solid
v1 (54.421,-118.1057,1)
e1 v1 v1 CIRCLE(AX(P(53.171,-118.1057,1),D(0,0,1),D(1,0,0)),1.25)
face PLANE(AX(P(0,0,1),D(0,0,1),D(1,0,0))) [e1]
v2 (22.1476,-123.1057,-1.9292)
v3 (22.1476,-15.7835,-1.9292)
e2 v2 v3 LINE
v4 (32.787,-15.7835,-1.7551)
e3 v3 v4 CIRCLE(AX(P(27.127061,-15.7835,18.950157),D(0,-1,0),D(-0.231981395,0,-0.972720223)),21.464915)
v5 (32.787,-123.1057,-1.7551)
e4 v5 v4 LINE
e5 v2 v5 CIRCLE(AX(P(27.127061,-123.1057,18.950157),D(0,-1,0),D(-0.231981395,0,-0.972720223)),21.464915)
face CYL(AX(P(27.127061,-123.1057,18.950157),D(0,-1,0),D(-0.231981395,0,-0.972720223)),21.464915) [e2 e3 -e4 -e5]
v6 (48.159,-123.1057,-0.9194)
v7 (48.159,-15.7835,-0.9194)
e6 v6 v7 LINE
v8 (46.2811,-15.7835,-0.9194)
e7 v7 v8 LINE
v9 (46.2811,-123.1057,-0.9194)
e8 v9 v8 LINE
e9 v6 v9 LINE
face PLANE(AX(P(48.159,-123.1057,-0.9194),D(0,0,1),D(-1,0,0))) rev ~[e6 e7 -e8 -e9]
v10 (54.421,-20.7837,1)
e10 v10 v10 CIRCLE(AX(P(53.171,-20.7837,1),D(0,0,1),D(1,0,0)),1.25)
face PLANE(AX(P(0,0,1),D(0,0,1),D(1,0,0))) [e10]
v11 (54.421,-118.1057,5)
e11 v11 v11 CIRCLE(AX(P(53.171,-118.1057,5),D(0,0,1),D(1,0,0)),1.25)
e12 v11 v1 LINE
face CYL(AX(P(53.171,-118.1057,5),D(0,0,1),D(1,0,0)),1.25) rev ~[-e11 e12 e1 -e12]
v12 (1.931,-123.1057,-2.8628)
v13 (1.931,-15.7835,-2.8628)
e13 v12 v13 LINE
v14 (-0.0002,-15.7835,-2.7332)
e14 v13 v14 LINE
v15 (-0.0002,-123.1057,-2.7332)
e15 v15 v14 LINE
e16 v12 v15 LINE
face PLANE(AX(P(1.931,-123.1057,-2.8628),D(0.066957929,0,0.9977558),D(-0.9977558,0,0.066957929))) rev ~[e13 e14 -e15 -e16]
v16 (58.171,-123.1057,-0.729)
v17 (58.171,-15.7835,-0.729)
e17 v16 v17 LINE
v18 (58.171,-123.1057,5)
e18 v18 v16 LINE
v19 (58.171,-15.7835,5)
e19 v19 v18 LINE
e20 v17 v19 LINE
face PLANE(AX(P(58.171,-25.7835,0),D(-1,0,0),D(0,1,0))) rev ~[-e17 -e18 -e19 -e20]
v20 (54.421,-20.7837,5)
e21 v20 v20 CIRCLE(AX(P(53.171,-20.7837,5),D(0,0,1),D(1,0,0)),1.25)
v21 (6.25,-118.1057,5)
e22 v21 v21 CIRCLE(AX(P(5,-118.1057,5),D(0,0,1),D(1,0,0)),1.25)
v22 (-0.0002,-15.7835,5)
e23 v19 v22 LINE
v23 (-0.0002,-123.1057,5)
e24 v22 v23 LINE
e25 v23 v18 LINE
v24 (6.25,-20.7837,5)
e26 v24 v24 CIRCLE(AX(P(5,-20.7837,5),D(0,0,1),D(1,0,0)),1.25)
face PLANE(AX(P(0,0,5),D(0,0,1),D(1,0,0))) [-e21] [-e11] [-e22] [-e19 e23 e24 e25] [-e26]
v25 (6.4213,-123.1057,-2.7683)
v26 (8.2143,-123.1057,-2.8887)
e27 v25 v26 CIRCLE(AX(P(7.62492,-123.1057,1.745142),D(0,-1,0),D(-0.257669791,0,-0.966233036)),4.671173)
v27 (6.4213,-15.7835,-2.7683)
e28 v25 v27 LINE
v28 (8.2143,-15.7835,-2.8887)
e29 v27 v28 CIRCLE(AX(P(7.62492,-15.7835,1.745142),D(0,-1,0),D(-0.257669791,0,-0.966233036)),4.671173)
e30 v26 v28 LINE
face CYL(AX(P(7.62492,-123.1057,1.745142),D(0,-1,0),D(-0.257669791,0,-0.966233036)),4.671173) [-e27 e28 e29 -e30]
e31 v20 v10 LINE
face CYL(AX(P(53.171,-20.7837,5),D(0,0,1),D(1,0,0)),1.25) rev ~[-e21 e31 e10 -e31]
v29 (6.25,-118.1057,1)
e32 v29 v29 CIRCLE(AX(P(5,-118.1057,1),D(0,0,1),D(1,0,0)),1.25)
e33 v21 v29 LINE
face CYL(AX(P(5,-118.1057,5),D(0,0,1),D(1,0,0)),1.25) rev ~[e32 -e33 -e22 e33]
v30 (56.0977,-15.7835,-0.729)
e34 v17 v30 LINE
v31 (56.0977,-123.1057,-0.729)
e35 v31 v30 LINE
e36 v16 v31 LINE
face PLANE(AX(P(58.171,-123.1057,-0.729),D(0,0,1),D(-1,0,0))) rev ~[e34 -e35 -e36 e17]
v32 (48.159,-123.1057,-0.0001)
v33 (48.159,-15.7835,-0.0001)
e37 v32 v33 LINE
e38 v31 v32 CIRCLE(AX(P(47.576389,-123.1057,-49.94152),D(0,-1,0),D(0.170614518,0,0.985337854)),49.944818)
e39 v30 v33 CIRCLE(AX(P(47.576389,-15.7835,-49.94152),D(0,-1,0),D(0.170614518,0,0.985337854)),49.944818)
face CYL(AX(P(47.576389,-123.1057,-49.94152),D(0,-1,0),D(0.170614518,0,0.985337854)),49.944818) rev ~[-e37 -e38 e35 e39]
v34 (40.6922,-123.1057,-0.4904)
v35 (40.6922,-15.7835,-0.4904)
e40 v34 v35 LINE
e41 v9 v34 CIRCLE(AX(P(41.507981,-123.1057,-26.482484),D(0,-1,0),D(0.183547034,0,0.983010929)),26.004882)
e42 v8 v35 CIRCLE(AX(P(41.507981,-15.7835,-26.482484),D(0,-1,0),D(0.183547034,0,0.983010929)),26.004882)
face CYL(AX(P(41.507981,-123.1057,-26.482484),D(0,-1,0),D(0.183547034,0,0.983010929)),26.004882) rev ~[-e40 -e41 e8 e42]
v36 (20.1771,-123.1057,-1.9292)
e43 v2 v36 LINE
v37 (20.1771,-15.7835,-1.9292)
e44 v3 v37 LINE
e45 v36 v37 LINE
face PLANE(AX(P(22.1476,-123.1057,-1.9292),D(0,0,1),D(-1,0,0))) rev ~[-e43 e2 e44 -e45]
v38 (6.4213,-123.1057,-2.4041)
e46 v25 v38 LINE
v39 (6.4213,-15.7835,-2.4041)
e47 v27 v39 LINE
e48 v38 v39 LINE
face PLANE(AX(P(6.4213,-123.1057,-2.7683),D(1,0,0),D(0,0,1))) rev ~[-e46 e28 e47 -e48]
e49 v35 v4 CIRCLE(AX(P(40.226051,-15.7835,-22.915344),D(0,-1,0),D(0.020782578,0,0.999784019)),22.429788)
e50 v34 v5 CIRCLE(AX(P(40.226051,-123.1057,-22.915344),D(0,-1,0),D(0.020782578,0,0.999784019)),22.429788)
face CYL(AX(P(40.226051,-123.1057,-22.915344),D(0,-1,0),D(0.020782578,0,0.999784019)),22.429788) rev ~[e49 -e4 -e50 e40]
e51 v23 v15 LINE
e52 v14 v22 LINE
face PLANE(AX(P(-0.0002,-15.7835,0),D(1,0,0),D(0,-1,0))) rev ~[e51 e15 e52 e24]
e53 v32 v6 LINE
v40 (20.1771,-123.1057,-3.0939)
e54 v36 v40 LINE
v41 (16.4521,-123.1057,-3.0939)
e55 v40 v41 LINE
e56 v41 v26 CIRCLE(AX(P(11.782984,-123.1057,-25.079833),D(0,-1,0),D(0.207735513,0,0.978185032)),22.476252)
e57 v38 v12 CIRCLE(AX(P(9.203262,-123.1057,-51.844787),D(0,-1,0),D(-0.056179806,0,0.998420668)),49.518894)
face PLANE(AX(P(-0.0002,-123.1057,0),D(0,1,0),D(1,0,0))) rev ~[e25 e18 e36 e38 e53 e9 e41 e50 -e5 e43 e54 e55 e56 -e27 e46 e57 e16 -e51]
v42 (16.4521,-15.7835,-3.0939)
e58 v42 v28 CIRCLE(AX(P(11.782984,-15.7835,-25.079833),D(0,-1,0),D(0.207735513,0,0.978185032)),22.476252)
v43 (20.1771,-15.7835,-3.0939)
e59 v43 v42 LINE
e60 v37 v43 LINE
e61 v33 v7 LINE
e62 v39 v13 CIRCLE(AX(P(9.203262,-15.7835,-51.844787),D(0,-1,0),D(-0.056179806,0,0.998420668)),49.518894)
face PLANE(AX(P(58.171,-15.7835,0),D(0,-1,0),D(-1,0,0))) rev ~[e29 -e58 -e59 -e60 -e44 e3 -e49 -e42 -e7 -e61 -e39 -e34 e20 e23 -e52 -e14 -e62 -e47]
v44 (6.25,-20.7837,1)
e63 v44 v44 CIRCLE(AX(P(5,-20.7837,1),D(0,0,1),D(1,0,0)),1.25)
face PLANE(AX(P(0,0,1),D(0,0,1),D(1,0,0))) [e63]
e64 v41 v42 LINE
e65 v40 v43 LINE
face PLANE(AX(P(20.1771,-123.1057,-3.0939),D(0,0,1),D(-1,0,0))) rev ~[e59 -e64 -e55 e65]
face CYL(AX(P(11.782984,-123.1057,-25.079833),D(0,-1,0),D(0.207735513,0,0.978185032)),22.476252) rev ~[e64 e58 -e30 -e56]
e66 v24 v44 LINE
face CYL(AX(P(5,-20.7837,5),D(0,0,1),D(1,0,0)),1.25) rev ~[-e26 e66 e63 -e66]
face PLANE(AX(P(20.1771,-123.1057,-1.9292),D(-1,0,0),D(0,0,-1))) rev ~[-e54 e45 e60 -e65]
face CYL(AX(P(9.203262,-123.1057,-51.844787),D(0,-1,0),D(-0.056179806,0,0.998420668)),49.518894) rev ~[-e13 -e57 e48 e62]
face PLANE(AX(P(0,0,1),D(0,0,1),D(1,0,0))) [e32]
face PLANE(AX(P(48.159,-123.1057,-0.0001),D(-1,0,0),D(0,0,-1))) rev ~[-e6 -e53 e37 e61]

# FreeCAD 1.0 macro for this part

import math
import FreeCAD as App
import Part
import Sketcher
from FreeCAD import Vector
Q = App.Units.Quantity

doc = App.newDocument("Part")
body = doc.addObject("PartDesign::Body", "Body")

# Sketch on XY plane
sketch1 = doc.addObject("Sketcher::SketchObject", "Sketch")
body.addObject(sketch1)
sketch1.AttachmentSupport = (doc.XY_Plane, [""])
sketch1.MapMode = "FlatFace"
sketch1.addGeometry([
    Part.LineSegment(Vector(58, -16, 0), Vector(0, -16, 0)),
    Part.LineSegment(Vector(0, -16, 0), Vector(0, -123, 0)),
    Part.LineSegment(Vector(0, -123, 0), Vector(58, -123, 0)),
    Part.LineSegment(Vector(58, -123, 0), Vector(58, -16, 0)),
], False)
sketch1.addConstraint([
    Sketcher.Constraint("Coincident", 0, 2, 1, 1),
    Sketcher.Constraint("Coincident", 1, 2, 2, 1),
    Sketcher.Constraint("Coincident", 2, 2, 3, 1),
    Sketcher.Constraint("Coincident", 3, 2, 0, 1),
    Sketcher.Constraint("Horizontal", 0),
    Sketcher.Constraint("Vertical", 1),
    Sketcher.Constraint("Horizontal", 2),
    Sketcher.Constraint("Vertical", 3),
    Sketcher.Constraint("DistanceX", 0, 2, 0, 1, 58.1712),
    Sketcher.Constraint("DistanceY", 1, 2, 1, 1, 107.3222),
    Sketcher.Constraint("DistanceX", -1, 1, 2, 2, 58.171),
    Sketcher.Constraint("DistanceY", 0, 2, -1, 1, 15.7835),
])
pad1 = doc.addObject("PartDesign::Pad", "Pad")
body.addObject(pad1)
pad1.Profile = sketch1
pad1.Type = "TwoLengths"
pad1.Length = 5
pad1.Length2 = 9.75

# Sketch on XZ plane
sketch2 = doc.addObject("Sketcher::SketchObject", "Sketch001")
body.addObject(sketch2)
sketch2.AttachmentSupport = (doc.XZ_Plane, [""])
sketch2.MapMode = "FlatFace"
sketch2.AttachmentOffset = App.Placement(Vector(0, 0, 123.1057), App.Rotation())
sketch2.addGeometry([
    Part.LineSegment(Vector(58.17, -18.75, 0), Vector(58.17, -0.73, 0)),  # 0
    Part.LineSegment(Vector(58.17, -0.73, 0), Vector(56.1, -0.73, 0)),  # 1
    Part.ArcOfCircle(Part.Circle(Vector(47.58, -49.94, 0), Vector(0, 0, 1), 49.94), math.radians(80.18), math.radians(89.33)),  # 2
    Part.LineSegment(Vector(48.16, 0, 0), Vector(48.16, -0.92, 0)),  # 3
    Part.LineSegment(Vector(48.16, -0.92, 0), Vector(46.28, -0.92, 0)),  # 4
    Part.ArcOfCircle(Part.Circle(Vector(41.51, -26.48, 0), Vector(0, 0, 1), 26.01), math.radians(79.42), math.radians(91.8)),  # 5
    Part.ArcOfCircle(Part.Circle(Vector(40.23, -22.92, 0), Vector(0, 0, 1), 22.43), math.radians(89), math.radians(109)),  # 6
    Part.ArcOfCircle(Part.Circle(Vector(27.13, 18.95, 0), Vector(0, 0, 1), 21.46), math.radians(-103), math.radians(-75)),  # 7
    Part.LineSegment(Vector(22.15, -1.93, 0), Vector(20.18, -1.93, 0)),  # 8
    Part.LineSegment(Vector(20.18, -1.93, 0), Vector(20.18, -3.09, 0)),  # 9
    Part.LineSegment(Vector(20.18, -3.09, 0), Vector(16.45, -3.09, 0)),  # 10
    Part.ArcOfCircle(Part.Circle(Vector(11.78, -25.08, 0), Vector(0, 0, 1), 22.48), math.radians(78), math.radians(99)),  # 11
    Part.ArcOfCircle(Part.Circle(Vector(7.62, 1.75, 0), Vector(0, 0, 1), 4.67), math.radians(-105), math.radians(-83)),  # 12
    Part.LineSegment(Vector(6.42, -2.77, 0), Vector(6.42, -2.4, 0)),  # 13
    Part.ArcOfCircle(Part.Circle(Vector(9.2, -51.84, 0), Vector(0, 0, 1), 49.52), math.radians(93.22), math.radians(98.44)),  # 14
    Part.LineSegment(Vector(1.93, -2.86, 0), Vector(0, -2.73, 0)),  # 15
    Part.LineSegment(Vector(0, -2.73, 0), Vector(0, -9.81, 0)),  # 16
    Part.LineSegment(Vector(0, -9.81, 0), Vector(-6.11, -9.81, 0)),  # 17
    Part.LineSegment(Vector(-6.11, -9.81, 0), Vector(-6.11, -18.75, 0)),  # 18
    Part.LineSegment(Vector(-6.11, -18.75, 0), Vector(58.17, -18.75, 0)),  # 19
], False)
sketch2.addConstraint([
    Sketcher.Constraint("Coincident", 0, 2, 1, 1),
    Sketcher.Constraint("Coincident", 1, 2, 2, 1),
    Sketcher.Constraint("Coincident", 2, 2, 3, 1),
    Sketcher.Constraint("Coincident", 3, 2, 4, 1),
    Sketcher.Constraint("Coincident", 4, 2, 5, 1),
    Sketcher.Constraint("Coincident", 5, 2, 6, 1),
    Sketcher.Constraint("Coincident", 6, 2, 7, 2),
    Sketcher.Constraint("Coincident", 7, 1, 8, 1),
    Sketcher.Constraint("Coincident", 8, 2, 9, 1),
    Sketcher.Constraint("Coincident", 9, 2, 10, 1),
    Sketcher.Constraint("Coincident", 10, 2, 11, 1),
    Sketcher.Constraint("Coincident", 11, 2, 12, 2),
    Sketcher.Constraint("Coincident", 12, 1, 13, 1),
    Sketcher.Constraint("Coincident", 13, 2, 14, 1),
    Sketcher.Constraint("Coincident", 14, 2, 15, 1),
    Sketcher.Constraint("Coincident", 15, 2, 16, 1),
    Sketcher.Constraint("Coincident", 16, 2, 17, 1),
    Sketcher.Constraint("Coincident", 17, 2, 18, 1),
    Sketcher.Constraint("Coincident", 18, 2, 19, 1),
    Sketcher.Constraint("Coincident", 19, 2, 0, 1),
    Sketcher.Constraint("Vertical", 0),
    Sketcher.Constraint("Horizontal", 1),
    Sketcher.Constraint("Vertical", 3),
    Sketcher.Constraint("Horizontal", 4),
    Sketcher.Constraint("Horizontal", 8),
    Sketcher.Constraint("Vertical", 9),
    Sketcher.Constraint("Horizontal", 10),
    Sketcher.Constraint("Vertical", 13),
    Sketcher.Constraint("Vertical", 16),
    Sketcher.Constraint("Horizontal", 17),
    Sketcher.Constraint("Vertical", 18),
    Sketcher.Constraint("Horizontal", 19),
    Sketcher.Constraint("PointOnObject", 2, 2, -1),
    Sketcher.Constraint("Radius", 14, 49.519),
    Sketcher.Constraint("DistanceX", 17, 2, 17, 1, 6.11),
    Sketcher.Constraint("DistanceY", 0, 1, 0, 2, 18.02),
    Sketcher.Constraint("DistanceY", 16, 2, 16, 1, 7.08),
    Sketcher.Constraint("Angle", 15, Q("176.1607 deg")),
    Sketcher.Constraint("Radius", 2, 49.9448),
    Sketcher.Constraint("Radius", 5, 26.0055),
    Sketcher.Constraint("Radius", 6, 22.4298),
    Sketcher.Constraint("Radius", 7, 21.4644),
    Sketcher.Constraint("Radius", 11, 22.4763),
    Sketcher.Constraint("Radius", 12, 4.6712),
    Sketcher.Constraint("DistanceX", 4, 2, 4, 1, 1.878),
    Sketcher.Constraint("DistanceX", 10, 2, 10, 1, 3.725),
    Sketcher.Constraint("DistanceY", 14, 3, 12, 3, 53.59),
    Sketcher.Constraint("DistanceX", 4, 2, 0, 2, 11.89),
    Sketcher.Constraint("DistanceX", 7, 3, 6, 2, 5.66),
    Sketcher.Constraint("DistanceX", 8, 2, 6, 2, 12.61),
    Sketcher.Constraint("DistanceX", 1, 2, 1, 1, 2.0733),
    Sketcher.Constraint("DistanceX", 8, 2, 8, 1, 1.9705),
    Sketcher.Constraint("DistanceX", 19, 1, 19, 2, 64.2812),
    Sketcher.Constraint("DistanceY", 3, 2, 3, 1, 0.9193),
    Sketcher.Constraint("DistanceY", 9, 2, 9, 1, 1.1647),
    Sketcher.Constraint("DistanceY", 13, 1, 13, 2, 0.3642),
    Sketcher.Constraint("DistanceY", 18, 2, 18, 1, 8.9358),
    Sketcher.Constraint("DistanceX", -1, 1, 5, 3, 41.508),
    Sketcher.Constraint("DistanceY", 5, 3, -1, 1, 26.483),
    Sketcher.Constraint("DistanceX", -1, 1, 6, 3, 40.226),
    Sketcher.Constraint("DistanceX", -1, 1, 7, 3, 27.127),
    Sketcher.Constraint("DistanceX", -1, 1, 11, 3, 11.783),
    Sketcher.Constraint("DistanceX", -1, 1, 12, 3, 7.625),
    Sketcher.Constraint("DistanceY", 0, 2, -1, 1, 0.729),
    Sketcher.Constraint("DistanceY", 6, 2, -1, 1, 1.755),
    Sketcher.Constraint("DistanceY", 13, 2, -1, 1, 2.404),
    Sketcher.Constraint("DistanceX", -1, 1, 14, 2, 1.931),
])
pocket1 = doc.addObject("PartDesign::Pocket", "Pocket")
body.addObject(pocket1)
pocket1.Profile = sketch2
pocket1.Length = 202.5

# Sketch on XY plane
sketch3 = doc.addObject("Sketcher::SketchObject", "Sketch002")
body.addObject(sketch3)
sketch3.AttachmentSupport = (doc.XY_Plane, [""])
sketch3.MapMode = "FlatFace"
sketch3.AttachmentOffset = App.Placement(Vector(0, 0, 5), App.Rotation())
sketch3.addGeometry([
    Part.Circle(Vector(53.2, -20.8, 0), Vector(0, 0, 1), 1.2),
    Part.Circle(Vector(5, -20.8, 0), Vector(0, 0, 1), 1.2),
    Part.Circle(Vector(53.2, -118.1, 0), Vector(0, 0, 1), 1.2),
    Part.Circle(Vector(5, -118.1, 0), Vector(0, 0, 1), 1.2),
], False)
sketch3.addConstraint([
    Sketcher.Constraint("Equal", 0, 1),
    Sketcher.Constraint("Equal", 1, 2),
    Sketcher.Constraint("Equal", 2, 3),
    Sketcher.Constraint("Horizontal", 0, 3, 1, 3),
    Sketcher.Constraint("Horizontal", 2, 3, 3, 3),
    Sketcher.Constraint("Vertical", 0, 3, 2, 3),
    Sketcher.Constraint("Vertical", 1, 3, 3, 3),
    Sketcher.Constraint("Diameter", 0, 2.5),
    Sketcher.Constraint("DistanceX", -1, 1, 1, 3, 5.0),
    Sketcher.Constraint("DistanceX", -1, 1, 0, 3, 53.171),
    Sketcher.Constraint("DistanceY", 2, 3, 0, 3, 97.322),
    Sketcher.Constraint("DistanceY", 0, 3, -1, 1, 20.7837),
])
pocket2 = doc.addObject("PartDesign::Pocket", "Pocket001")
body.addObject(pocket2)
pocket2.Profile = sketch3
pocket2.Length = 4

doc.recompute()
